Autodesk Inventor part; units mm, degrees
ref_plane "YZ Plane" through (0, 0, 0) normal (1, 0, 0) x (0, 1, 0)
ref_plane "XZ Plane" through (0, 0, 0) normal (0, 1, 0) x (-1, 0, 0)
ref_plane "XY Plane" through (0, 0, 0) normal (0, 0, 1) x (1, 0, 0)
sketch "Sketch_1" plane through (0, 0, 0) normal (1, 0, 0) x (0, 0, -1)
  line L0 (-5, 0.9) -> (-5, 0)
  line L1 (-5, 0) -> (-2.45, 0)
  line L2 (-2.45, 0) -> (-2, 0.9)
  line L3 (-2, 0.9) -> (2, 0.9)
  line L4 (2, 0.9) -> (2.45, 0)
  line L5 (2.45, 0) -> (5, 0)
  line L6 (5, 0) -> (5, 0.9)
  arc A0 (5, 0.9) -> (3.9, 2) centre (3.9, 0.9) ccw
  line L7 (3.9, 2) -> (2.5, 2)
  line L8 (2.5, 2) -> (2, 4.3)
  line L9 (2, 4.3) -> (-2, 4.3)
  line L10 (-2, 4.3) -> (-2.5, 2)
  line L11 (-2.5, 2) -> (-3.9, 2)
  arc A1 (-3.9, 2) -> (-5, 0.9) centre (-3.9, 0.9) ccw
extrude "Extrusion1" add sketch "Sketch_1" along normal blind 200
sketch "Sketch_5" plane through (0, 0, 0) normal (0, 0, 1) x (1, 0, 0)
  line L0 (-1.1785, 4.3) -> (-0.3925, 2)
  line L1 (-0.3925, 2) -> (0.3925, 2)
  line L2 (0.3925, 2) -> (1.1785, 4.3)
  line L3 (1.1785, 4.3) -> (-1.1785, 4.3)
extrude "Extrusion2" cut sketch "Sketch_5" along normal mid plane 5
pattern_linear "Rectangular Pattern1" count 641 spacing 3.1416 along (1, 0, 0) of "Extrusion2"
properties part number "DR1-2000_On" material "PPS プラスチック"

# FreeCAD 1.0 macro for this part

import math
import FreeCAD as App
import Part
import Sketcher
Q = App.Units.Quantity


def add_polygon(sketch, points):
    """Adds a closed chain of lines whose ends are joined by coincident constraints."""
    first, n = sketch.GeometryCount, len(points)
    for a, b in zip(points, points[1:] + points[:1]):
        sketch.addGeometry(Part.LineSegment(App.Vector(*a, 0), App.Vector(*b, 0)), False)
    for i in range(n):
        sketch.addConstraint(Sketcher.Constraint("Coincident", first + i, 2, first + (i + 1) % n, 1))

doc = App.newDocument("Part")
body = doc.addObject("PartDesign::Body", "Body")

# Sketch on YZ plane
sketch1 = body.newObject("Sketcher::SketchObject", "Sketch")
sketch1.AttachmentSupport = (doc.getObject("YZ_Plane"), [""])
sketch1.MapMode = "FlatFace"
sketch1.addGeometry(Part.ArcOfCircle(Part.Circle(App.Vector(0.9, 3.9, 0), App.Vector(0, 0, 1), 1.1), math.radians(0), math.radians(90)), False)
sketch1.addGeometry(Part.LineSegment(App.Vector(0.9, 5, 0), App.Vector(0, 5, 0)), False)
sketch1.addGeometry(Part.LineSegment(App.Vector(0, 5, 0), App.Vector(0, 2.45, 0)), False)
sketch1.addGeometry(Part.LineSegment(App.Vector(0, 2.45, 0), App.Vector(0.9, 2, 0)), False)
sketch1.addGeometry(Part.LineSegment(App.Vector(0.9, 2, 0), App.Vector(0.9, -2, 0)), False)
sketch1.addGeometry(Part.LineSegment(App.Vector(0.9, -2, 0), App.Vector(0, -2.45, 0)), False)
sketch1.addGeometry(Part.LineSegment(App.Vector(0, -2.45, 0), App.Vector(0, -5, 0)), False)
sketch1.addGeometry(Part.LineSegment(App.Vector(0, -5, 0), App.Vector(0.9, -5, 0)), False)
sketch1.addGeometry(Part.ArcOfCircle(Part.Circle(App.Vector(0.9, -3.9, 0), App.Vector(0, 0, 1), 1.1), math.radians(-90), math.radians(0)), False)
sketch1.addGeometry(Part.LineSegment(App.Vector(2, -3.9, 0), App.Vector(2, -2.5, 0)), False)
sketch1.addGeometry(Part.LineSegment(App.Vector(2, -2.5, 0), App.Vector(4.3, -2, 0)), False)
sketch1.addGeometry(Part.LineSegment(App.Vector(4.3, -2, 0), App.Vector(4.3, 2, 0)), False)
sketch1.addGeometry(Part.LineSegment(App.Vector(4.3, 2, 0), App.Vector(2, 2.5, 0)), False)
sketch1.addGeometry(Part.LineSegment(App.Vector(2, 2.5, 0), App.Vector(2, 3.9, 0)), False)
sketch1.addConstraint(Sketcher.Constraint("Tangent", 0, 2, 1, 1))
sketch1.addConstraint(Sketcher.Constraint("Coincident", 1, 2, 2, 1))
sketch1.addConstraint(Sketcher.Constraint("Coincident", 2, 2, 3, 1))
sketch1.addConstraint(Sketcher.Constraint("Coincident", 3, 2, 4, 1))
sketch1.addConstraint(Sketcher.Constraint("Coincident", 4, 2, 5, 1))
sketch1.addConstraint(Sketcher.Constraint("Coincident", 5, 2, 6, 1))
sketch1.addConstraint(Sketcher.Constraint("Coincident", 6, 2, 7, 1))
sketch1.addConstraint(Sketcher.Constraint("Tangent", 7, 2, 8, 1))
sketch1.addConstraint(Sketcher.Constraint("Tangent", 8, 2, 9, 1))
sketch1.addConstraint(Sketcher.Constraint("Coincident", 9, 2, 10, 1))
sketch1.addConstraint(Sketcher.Constraint("Coincident", 10, 2, 11, 1))
sketch1.addConstraint(Sketcher.Constraint("Coincident", 11, 2, 12, 1))
sketch1.addConstraint(Sketcher.Constraint("Coincident", 12, 2, 13, 1))
sketch1.addConstraint(Sketcher.Constraint("Tangent", 13, 2, 0, 1))
sketch1.addConstraint(Sketcher.Constraint("Horizontal", 1))
sketch1.addConstraint(Sketcher.Constraint("Vertical", 2))
sketch1.addConstraint(Sketcher.Constraint("Vertical", 4))
sketch1.addConstraint(Sketcher.Constraint("Vertical", 6))
sketch1.addConstraint(Sketcher.Constraint("Horizontal", 7))
sketch1.addConstraint(Sketcher.Constraint("Vertical", 9))
sketch1.addConstraint(Sketcher.Constraint("Vertical", 11))
sketch1.addConstraint(Sketcher.Constraint("Vertical", 13))
sketch1.addConstraint(Sketcher.Constraint("Equal", 0, 8))
sketch1.addConstraint(Sketcher.Constraint("Symmetric", 2, 2, 5, 2, -1, 1))
sketch1.addConstraint(Sketcher.Constraint("Symmetric", 0, 3, 8, 3, -1))
sketch1.addConstraint(Sketcher.Constraint("PointOnObject", 1, 2, -2))
sketch1.addConstraint(Sketcher.Constraint("Horizontal", 4, 2, 10, 2))
sketch1.addConstraint(Sketcher.Constraint("Horizontal", 3, 2, 11, 2))
sketch1.addConstraint(Sketcher.Constraint("Vertical", 0, 2, 3, 2))
sketch1.addConstraint(Sketcher.Constraint("Equal", 9, 13))
sketch1.addConstraint(Sketcher.Constraint("Equal", 3, 5))
sketch1.addConstraint(Sketcher.Constraint("Radius", 0, Q("1.1 mm")))
sketch1.addConstraint(Sketcher.Constraint("DistanceY", 4, 2, 4, 1, Q("4 mm")))
sketch1.addConstraint(Sketcher.Constraint("DistanceX", 1, 2, 1, 1, Q("0.9 mm")))
sketch1.addConstraint(Sketcher.Constraint("DistanceY", 9, 1, 9, 2, Q("1.4 mm")))
sketch1.addConstraint(Sketcher.Constraint("DistanceY", -1, 1, 0, 2, Q("5 mm")))
sketch1.addConstraint(Sketcher.Constraint("DistanceY", 2, 2, 2, 1, Q("2.55 mm")))
sketch1.addConstraint(Sketcher.Constraint("DistanceX", -1, 1, 10, 2, Q("4.3 mm")))
pad1 = body.newObject("PartDesign::Pad", "Pad")
pad1.Profile = sketch1
pad1.Length = 200

# Sketch on XY plane
sketch2 = body.newObject("Sketcher::SketchObject", "Sketch001")
sketch2.AttachmentSupport = (doc.getObject("XY_Plane"), [""])
sketch2.MapMode = "FlatFace"
add_polygon(sketch2, [(1.1785, 4.3), (-1.1785, 4.3), (-0.3925, 2), (0.3925, 2)])  # lines 0-3
sketch2.addConstraint(Sketcher.Constraint("Horizontal", 0))
sketch2.addConstraint(Sketcher.Constraint("Horizontal", 2))
sketch2.addConstraint(Sketcher.Constraint("Equal", 1, 3))
sketch2.addConstraint(Sketcher.Constraint("DistanceY", -1, 1, 1, 2, Q("2 mm")))
sketch2.addConstraint(Sketcher.Constraint("DistanceY", -1, 1, 0, 2, Q("4.3 mm")))
sketch2.addConstraint(Sketcher.Constraint("DistanceX", 0, 2, 0, 1, Q("2.357 mm")))
sketch2.addConstraint(Sketcher.Constraint("DistanceX", 2, 1, 2, 2, Q("0.785 mm")))
sketch2.addConstraint(Sketcher.Constraint("DistanceX", 0, 2, -1, 1, Q("1.1785 mm")))
pocket1 = body.newObject("PartDesign::Pocket", "Pocket")
pocket1.Profile = sketch2
pocket1.Length = 5
pocket1.Midplane = True
doc.recompute()

linearpattern = body.newObject("PartDesign::LinearPattern", "LinearPattern")
linearpattern.Originals = [pocket1]
linearpattern.Direction = (doc.getObject("X_Axis"), [""])
linearpattern.Mode = "offset"
linearpattern.Offset = 3.1416
linearpattern.Occurrences = 401
body.Tip = linearpattern

doc.recompute()
